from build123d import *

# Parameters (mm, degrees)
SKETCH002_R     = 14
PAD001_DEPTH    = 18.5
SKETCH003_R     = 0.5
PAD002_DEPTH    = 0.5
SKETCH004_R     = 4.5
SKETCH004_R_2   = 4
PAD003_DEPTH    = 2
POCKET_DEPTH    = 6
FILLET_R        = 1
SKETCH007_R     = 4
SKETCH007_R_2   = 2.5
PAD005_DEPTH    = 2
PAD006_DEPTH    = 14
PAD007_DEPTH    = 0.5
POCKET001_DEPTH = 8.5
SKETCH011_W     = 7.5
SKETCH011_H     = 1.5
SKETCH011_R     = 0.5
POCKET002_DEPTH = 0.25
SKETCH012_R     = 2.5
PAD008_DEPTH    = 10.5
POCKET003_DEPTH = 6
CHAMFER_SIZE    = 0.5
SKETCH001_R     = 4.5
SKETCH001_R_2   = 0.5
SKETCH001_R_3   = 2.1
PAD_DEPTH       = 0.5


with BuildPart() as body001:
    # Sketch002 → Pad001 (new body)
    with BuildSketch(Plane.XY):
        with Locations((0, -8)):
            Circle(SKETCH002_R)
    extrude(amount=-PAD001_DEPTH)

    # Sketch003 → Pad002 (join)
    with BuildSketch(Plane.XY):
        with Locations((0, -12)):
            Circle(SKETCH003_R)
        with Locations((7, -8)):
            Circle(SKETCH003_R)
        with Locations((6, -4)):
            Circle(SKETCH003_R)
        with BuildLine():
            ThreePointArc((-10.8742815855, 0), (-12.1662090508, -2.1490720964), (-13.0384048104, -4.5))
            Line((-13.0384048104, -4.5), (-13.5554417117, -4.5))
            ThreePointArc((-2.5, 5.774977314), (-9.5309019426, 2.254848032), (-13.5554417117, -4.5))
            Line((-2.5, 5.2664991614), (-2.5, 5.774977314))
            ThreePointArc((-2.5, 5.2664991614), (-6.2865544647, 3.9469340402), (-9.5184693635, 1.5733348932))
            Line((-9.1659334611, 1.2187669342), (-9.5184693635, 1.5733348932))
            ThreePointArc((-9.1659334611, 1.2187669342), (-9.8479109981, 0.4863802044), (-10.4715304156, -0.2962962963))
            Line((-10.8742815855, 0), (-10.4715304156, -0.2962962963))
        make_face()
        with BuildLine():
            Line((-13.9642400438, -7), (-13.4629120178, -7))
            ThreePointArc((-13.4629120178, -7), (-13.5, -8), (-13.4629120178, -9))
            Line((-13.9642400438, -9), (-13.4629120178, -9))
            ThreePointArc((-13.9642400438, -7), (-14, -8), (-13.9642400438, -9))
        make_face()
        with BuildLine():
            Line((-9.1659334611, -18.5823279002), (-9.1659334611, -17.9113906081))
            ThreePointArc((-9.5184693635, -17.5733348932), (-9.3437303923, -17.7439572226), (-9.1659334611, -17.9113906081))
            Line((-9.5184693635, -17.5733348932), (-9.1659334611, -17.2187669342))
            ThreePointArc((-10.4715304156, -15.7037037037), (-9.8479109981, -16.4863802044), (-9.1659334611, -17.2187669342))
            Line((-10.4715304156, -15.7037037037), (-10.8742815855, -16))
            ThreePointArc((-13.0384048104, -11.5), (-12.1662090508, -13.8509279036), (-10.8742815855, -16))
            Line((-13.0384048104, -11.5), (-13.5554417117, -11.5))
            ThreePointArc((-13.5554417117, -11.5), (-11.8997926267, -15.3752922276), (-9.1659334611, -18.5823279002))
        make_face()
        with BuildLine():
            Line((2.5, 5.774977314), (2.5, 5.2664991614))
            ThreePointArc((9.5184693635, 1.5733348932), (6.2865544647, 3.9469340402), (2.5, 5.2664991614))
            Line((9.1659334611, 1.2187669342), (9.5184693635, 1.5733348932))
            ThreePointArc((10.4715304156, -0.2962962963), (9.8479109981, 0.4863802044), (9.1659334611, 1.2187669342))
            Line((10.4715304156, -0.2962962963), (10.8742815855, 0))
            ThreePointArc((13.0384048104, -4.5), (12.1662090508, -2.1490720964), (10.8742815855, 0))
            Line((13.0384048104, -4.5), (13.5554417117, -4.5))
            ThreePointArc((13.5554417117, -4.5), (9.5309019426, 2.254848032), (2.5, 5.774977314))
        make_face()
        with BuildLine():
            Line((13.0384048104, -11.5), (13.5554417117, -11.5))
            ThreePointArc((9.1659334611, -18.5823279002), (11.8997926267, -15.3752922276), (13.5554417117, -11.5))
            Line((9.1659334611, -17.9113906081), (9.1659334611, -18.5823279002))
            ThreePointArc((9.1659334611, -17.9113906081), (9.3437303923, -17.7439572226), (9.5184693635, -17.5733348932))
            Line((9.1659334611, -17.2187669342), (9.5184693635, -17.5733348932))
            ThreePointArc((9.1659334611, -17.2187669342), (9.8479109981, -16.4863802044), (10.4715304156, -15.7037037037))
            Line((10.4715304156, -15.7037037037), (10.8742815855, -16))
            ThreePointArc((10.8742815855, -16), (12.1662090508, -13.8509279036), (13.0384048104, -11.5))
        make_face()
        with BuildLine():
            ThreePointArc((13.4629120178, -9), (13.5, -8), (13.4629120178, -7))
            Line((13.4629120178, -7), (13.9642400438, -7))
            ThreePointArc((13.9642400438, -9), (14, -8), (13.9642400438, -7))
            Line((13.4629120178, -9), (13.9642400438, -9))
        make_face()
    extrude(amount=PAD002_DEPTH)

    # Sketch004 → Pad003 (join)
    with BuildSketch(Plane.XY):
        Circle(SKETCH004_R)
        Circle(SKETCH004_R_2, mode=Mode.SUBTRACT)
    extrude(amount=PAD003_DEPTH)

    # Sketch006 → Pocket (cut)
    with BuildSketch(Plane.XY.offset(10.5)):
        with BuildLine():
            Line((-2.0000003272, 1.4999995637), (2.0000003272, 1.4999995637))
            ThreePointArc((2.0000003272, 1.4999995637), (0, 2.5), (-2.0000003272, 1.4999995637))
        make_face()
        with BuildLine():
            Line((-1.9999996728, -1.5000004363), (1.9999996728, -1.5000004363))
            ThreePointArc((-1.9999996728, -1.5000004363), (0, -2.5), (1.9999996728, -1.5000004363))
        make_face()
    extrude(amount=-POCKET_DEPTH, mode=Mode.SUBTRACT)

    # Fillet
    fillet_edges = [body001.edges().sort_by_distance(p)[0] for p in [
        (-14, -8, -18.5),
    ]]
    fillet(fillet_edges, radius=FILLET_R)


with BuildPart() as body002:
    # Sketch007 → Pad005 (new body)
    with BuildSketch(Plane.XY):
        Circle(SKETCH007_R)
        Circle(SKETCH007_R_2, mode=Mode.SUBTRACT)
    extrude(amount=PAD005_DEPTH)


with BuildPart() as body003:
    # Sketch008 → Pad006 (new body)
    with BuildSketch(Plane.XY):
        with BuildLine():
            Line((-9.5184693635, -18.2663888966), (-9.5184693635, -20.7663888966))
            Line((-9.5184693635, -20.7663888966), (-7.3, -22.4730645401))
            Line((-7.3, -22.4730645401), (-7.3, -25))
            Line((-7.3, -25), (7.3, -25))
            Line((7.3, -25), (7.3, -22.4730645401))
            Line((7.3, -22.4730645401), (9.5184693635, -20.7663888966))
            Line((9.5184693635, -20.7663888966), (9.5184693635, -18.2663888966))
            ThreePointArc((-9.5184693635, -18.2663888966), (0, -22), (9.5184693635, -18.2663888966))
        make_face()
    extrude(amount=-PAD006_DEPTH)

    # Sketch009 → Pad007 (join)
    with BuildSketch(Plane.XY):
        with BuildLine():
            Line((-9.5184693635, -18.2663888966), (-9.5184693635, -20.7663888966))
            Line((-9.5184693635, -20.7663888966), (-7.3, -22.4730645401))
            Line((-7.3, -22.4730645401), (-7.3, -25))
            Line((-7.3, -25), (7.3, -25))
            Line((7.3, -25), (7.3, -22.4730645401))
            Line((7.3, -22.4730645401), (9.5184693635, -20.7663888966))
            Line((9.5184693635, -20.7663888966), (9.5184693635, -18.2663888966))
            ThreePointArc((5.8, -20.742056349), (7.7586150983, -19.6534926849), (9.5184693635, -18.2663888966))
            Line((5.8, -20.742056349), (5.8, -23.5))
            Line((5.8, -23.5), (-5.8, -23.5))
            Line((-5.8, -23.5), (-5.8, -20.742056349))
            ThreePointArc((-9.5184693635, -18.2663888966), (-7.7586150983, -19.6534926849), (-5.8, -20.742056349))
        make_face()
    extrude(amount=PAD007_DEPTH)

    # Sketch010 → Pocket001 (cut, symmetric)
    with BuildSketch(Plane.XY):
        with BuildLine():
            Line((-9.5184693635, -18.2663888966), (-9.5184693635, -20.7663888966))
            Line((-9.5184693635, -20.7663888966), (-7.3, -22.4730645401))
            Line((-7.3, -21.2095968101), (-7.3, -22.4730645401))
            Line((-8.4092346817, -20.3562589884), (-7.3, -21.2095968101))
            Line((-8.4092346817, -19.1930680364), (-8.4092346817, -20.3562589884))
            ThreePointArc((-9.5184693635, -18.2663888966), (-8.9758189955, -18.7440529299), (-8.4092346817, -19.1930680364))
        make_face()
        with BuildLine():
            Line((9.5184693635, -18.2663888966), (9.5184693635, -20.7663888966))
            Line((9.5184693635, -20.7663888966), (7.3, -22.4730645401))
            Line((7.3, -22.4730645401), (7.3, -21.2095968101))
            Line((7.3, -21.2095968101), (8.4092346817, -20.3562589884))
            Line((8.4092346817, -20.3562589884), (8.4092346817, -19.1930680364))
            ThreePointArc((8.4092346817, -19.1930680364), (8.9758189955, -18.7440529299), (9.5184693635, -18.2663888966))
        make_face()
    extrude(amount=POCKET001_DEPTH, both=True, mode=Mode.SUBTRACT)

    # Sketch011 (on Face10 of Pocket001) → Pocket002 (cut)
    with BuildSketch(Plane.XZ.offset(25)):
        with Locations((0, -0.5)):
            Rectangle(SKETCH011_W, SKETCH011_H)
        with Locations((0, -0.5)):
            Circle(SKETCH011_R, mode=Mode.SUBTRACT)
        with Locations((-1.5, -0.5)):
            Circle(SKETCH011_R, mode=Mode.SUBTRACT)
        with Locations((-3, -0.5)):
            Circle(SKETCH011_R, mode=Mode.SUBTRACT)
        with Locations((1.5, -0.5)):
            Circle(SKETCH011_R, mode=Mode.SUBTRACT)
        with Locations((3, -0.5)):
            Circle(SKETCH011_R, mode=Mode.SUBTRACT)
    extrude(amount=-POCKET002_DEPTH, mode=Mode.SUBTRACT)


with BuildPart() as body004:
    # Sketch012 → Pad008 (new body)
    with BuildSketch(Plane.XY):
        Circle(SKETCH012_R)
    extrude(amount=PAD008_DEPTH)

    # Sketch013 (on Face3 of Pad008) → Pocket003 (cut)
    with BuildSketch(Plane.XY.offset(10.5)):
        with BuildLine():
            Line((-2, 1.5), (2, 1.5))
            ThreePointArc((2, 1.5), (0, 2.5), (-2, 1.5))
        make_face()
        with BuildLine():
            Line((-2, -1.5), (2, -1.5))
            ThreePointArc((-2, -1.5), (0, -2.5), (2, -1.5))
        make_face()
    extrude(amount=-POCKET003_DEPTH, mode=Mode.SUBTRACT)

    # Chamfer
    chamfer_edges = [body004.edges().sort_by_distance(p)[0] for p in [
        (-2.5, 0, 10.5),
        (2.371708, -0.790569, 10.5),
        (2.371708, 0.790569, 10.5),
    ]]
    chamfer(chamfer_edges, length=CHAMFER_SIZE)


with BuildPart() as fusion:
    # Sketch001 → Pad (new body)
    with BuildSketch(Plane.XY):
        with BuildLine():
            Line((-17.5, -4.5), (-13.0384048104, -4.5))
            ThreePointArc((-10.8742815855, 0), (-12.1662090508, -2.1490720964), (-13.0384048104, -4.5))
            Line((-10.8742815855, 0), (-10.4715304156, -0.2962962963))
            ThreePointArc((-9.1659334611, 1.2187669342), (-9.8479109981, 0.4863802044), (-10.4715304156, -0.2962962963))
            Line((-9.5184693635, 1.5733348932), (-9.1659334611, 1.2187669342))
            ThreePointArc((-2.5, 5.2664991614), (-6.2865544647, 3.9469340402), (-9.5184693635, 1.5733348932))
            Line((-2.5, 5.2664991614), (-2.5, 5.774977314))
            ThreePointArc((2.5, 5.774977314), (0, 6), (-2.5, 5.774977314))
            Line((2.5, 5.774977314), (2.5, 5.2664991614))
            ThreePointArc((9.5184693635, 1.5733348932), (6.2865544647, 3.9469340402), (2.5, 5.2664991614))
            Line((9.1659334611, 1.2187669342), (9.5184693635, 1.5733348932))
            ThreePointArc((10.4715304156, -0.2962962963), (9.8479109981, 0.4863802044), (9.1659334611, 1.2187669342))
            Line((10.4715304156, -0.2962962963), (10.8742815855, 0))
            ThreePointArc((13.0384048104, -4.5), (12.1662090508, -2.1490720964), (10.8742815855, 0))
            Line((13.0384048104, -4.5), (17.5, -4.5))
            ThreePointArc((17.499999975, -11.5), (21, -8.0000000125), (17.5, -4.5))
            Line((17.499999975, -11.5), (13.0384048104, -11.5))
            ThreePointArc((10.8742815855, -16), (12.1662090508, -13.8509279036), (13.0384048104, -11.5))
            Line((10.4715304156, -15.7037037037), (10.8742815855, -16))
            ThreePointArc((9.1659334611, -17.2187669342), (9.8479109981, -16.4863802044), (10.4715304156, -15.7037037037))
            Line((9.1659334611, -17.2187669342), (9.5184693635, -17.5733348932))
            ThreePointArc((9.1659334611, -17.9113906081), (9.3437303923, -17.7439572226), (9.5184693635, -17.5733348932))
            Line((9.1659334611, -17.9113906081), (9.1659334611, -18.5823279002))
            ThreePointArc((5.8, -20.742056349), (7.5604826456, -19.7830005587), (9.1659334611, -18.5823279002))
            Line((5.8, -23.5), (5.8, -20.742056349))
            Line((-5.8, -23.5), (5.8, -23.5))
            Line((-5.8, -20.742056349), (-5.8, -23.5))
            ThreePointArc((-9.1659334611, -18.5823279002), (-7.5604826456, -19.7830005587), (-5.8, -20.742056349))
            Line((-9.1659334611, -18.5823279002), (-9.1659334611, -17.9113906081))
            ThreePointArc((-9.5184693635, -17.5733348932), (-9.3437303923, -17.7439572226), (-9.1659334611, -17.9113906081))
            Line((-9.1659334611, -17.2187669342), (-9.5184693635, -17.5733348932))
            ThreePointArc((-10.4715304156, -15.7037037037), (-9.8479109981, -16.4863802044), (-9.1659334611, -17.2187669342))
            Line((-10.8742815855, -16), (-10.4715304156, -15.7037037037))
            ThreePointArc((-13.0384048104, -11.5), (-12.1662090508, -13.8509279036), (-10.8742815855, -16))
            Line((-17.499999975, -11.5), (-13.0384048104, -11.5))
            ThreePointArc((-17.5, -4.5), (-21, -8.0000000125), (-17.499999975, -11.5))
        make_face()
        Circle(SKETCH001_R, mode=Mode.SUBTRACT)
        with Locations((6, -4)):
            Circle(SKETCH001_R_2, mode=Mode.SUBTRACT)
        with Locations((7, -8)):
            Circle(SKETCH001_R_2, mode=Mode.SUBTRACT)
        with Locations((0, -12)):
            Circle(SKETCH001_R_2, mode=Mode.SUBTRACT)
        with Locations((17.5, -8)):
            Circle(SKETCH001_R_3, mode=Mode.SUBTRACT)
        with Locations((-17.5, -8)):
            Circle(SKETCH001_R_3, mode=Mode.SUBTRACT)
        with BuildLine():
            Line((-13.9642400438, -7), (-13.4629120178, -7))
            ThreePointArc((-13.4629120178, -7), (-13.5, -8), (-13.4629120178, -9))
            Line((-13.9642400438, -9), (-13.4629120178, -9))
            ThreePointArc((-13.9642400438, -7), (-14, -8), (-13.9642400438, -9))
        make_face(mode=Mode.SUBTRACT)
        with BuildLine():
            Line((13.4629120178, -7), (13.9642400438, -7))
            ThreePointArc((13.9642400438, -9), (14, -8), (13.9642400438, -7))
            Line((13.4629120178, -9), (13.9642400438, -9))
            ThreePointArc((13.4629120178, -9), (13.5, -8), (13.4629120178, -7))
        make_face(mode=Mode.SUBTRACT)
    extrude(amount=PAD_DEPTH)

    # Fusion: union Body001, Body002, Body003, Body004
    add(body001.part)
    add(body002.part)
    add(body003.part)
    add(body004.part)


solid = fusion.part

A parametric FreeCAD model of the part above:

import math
import FreeCAD as App
import Part
import Sketcher

V = App.Vector
Q = App.Units.Quantity


def edges_at(feature, points):
    """Names of the edges that pass closest to the given points."""
    edges = feature.Shape.Edges
    near = lambda p: min(range(len(edges)), key=lambda i: edges[i].distToShape(Part.Vertex(*p))[0])
    return sorted({f"Edge{near(p) + 1}" for p in points})


def add_polygon(sketch, points):
    """Adds a closed chain of lines whose ends are joined by coincident constraints."""
    first, n = sketch.GeometryCount, len(points)
    for a, b in zip(points, points[1:] + points[:1]):
        sketch.addGeometry(Part.LineSegment(App.Vector(*a, 0), App.Vector(*b, 0)), False)
    for i in range(n):
        sketch.addConstraint(Sketcher.Constraint("Coincident", first + i, 2, first + (i + 1) % n, 1))

doc = App.newDocument("Part")
body = doc.addObject("PartDesign::Body", "Body")

sketch1 = body.newObject("Sketcher::SketchObject", "Sketch")
sketch1.AttachmentSupport = (doc.getObject("XY_Plane"), [""])
sketch1.MapMode = "FlatFace"
sketch1.addGeometry(Part.Circle(V(0, -8, 0), V(0, 0, 1), 14), False)
sketch1.addConstraint([
    Sketcher.Constraint("PointOnObject", 0, 3, -2),
    Sketcher.Constraint("Diameter", 0, Q("28 mm")),
    Sketcher.Constraint("DistanceY", 0, 3, -1, 1, Q("8 mm")),
])
pad1 = body.newObject("PartDesign::Pad", "Pad")
pad1.Profile = sketch1
pad1.Length = 18.5
pad1.Reversed = True

sketch2 = body.newObject("Sketcher::SketchObject", "Sketch001")
sketch2.AttachmentSupport = (doc.getObject("XY_Plane"), [""])
sketch2.MapMode = "FlatFace"
sketch2.addGeometry([
    Part.Circle(V(0, -12, 0), V(0, 0, 1), 0.5),
    Part.Circle(V(7, -8, 0), V(0, 0, 1), 0.5),
    Part.Circle(V(6, -4, 0), V(0, 0, 1), 0.5),
    Part.ArcOfCircle(Part.Circle(V(0, -8, 0), V(0, 0, 1), 13.5), math.radians(144), math.radians(165)),
    Part.LineSegment(V(-10.87, 0, 0), V(-10.47, -0.3, 0)),
    Part.ArcOfCircle(Part.Circle(V(0, -8, 0), V(0, 0, 1), 13), math.radians(134.84), math.radians(143.66)),
    Part.LineSegment(V(-9.17, 1.22, 0), V(-9.52, 1.57, 0)),
    Part.ArcOfCircle(Part.Circle(V(0, -8, 0), V(0, 0, 1), 13.5), math.radians(101), math.radians(135)),
    Part.LineSegment(V(-2.5, 5.27, 0), V(-2.5, 5.77, 0)),
    Part.ArcOfCircle(Part.Circle(V(0, -8, 0), V(0, 0, 1), 14), math.radians(100), math.radians(166)),
    Part.LineSegment(V(-13.56, -4.5, 0), V(-13.04, -4.5, 0)),
    Part.LineSegment(V(-13.46, -7, 0), V(-13.96, -7, 0)),
    Part.ArcOfCircle(Part.Circle(V(0, -8, 0), V(0, 0, 1), 14), math.radians(175.9), math.radians(184.1)),
    Part.LineSegment(V(-13.96, -9, 0), V(-13.46, -9, 0)),
    Part.ArcOfCircle(Part.Circle(V(0, -8, 0), V(0, 0, 1), 13.5), math.radians(175.75), math.radians(184.25)),
    Part.LineSegment(V(-9.17, -18.58, 0), V(-9.17, -17.91, 0)),
    Part.ArcOfCircle(Part.Circle(V(0, -8, 0), V(0, 0, 1), 13.5), math.radians(-134.84), math.radians(-132.76)),
    Part.LineSegment(V(-9.52, -17.57, 0), V(-9.17, -17.22, 0)),
    Part.ArcOfCircle(Part.Circle(V(0, -8, 0), V(0, 0, 1), 13), math.radians(-143.66), math.radians(-134.84)),
    Part.LineSegment(V(-10.47, -15.7, 0), V(-10.87, -16, 0)),
    Part.ArcOfCircle(Part.Circle(V(0, -8, 0), V(0, 0, 1), 13.5), math.radians(-165), math.radians(-144)),
    Part.LineSegment(V(-13.04, -11.5, 0), V(-13.56, -11.5, 0)),
    Part.ArcOfCircle(Part.Circle(V(0, -8, 0), V(0, 0, 1), 14), math.radians(-166), math.radians(-131)),
    Part.LineSegment(V(2.5, 5.77, 0), V(2.5, 5.27, 0)),
    Part.ArcOfCircle(Part.Circle(V(0, -8, 0), V(0, 0, 1), 13.5), math.radians(45), math.radians(79)),
    Part.LineSegment(V(9.52, 1.57, 0), V(9.17, 1.22, 0)),
    Part.ArcOfCircle(Part.Circle(V(0, -8, 0), V(0, 0, 1), 13), math.radians(36.34), math.radians(45.16)),
    Part.LineSegment(V(10.47, -0.3, 0), V(10.87, 0, 0)),
    Part.ArcOfCircle(Part.Circle(V(0, -8, 0), V(0, 0, 1), 13.5), math.radians(15), math.radians(36)),
    Part.LineSegment(V(13.04, -4.5, 0), V(13.56, -4.5, 0)),
    Part.ArcOfCircle(Part.Circle(V(0, -8, 0), V(0, 0, 1), 14), math.radians(14), math.radians(80)),
    Part.LineSegment(V(13.56, -11.5, 0), V(13.04, -11.5, 0)),
    Part.ArcOfCircle(Part.Circle(V(0, -8, 0), V(0, 0, 1), 13.5), math.radians(-36), math.radians(-15)),
    Part.LineSegment(V(10.87, -16, 0), V(10.47, -15.7, 0)),
    Part.ArcOfCircle(Part.Circle(V(0, -8, 0), V(0, 0, 1), 13), math.radians(-45.16), math.radians(-36.34)),
    Part.LineSegment(V(9.17, -17.22, 0), V(9.52, -17.57, 0)),
    Part.ArcOfCircle(Part.Circle(V(0, -8, 0), V(0, 0, 1), 13.5), math.radians(-47.24), math.radians(-45.16)),
    Part.LineSegment(V(9.17, -17.91, 0), V(9.17, -18.58, 0)),
    Part.ArcOfCircle(Part.Circle(V(0, -8, 0), V(0, 0, 1), 14), math.radians(-49), math.radians(-14)),
    Part.ArcOfCircle(Part.Circle(V(0, -8, 0), V(0, 0, 1), 13.5), math.radians(-4.25), math.radians(4.25)),
    Part.LineSegment(V(13.46, -9, 0), V(13.96, -9, 0)),
    Part.ArcOfCircle(Part.Circle(V(0, -8, 0), V(0, 0, 1), 14), math.radians(-4.1), math.radians(4.1)),
    Part.LineSegment(V(13.96, -7, 0), V(13.46, -7, 0)),
], False)
sketch2.addConstraint([
    Sketcher.Constraint("Coincident", 3, 1, 4, 1),
    Sketcher.Constraint("Coincident", 4, 2, 5, 2),
    Sketcher.Constraint("Coincident", 5, 1, 6, 1),
    Sketcher.Constraint("Coincident", 6, 2, 7, 2),
    Sketcher.Constraint("Coincident", 7, 1, 8, 1),
    Sketcher.Constraint("Coincident", 8, 2, 9, 1),
    Sketcher.Constraint("Coincident", 9, 2, 10, 1),
    Sketcher.Constraint("Coincident", 10, 2, 3, 2),
    Sketcher.Constraint("Coincident", 11, 2, 12, 1),
    Sketcher.Constraint("Coincident", 12, 2, 13, 1),
    Sketcher.Constraint("Coincident", 13, 2, 14, 2),
    Sketcher.Constraint("Coincident", 14, 1, 11, 1),
    Sketcher.Constraint("Coincident", 15, 2, 16, 2),
    Sketcher.Constraint("Coincident", 16, 1, 17, 1),
    Sketcher.Constraint("Coincident", 17, 2, 18, 2),
    Sketcher.Constraint("Coincident", 18, 1, 19, 1),
    Sketcher.Constraint("Coincident", 19, 2, 20, 2),
    Sketcher.Constraint("Coincident", 20, 1, 21, 1),
    Sketcher.Constraint("Coincident", 21, 2, 22, 1),
    Sketcher.Constraint("Coincident", 22, 2, 15, 1),
    Sketcher.Constraint("Coincident", 23, 2, 24, 2),
    Sketcher.Constraint("Coincident", 24, 1, 25, 1),
    Sketcher.Constraint("Coincident", 25, 2, 26, 2),
    Sketcher.Constraint("Coincident", 26, 1, 27, 1),
    Sketcher.Constraint("Coincident", 27, 2, 28, 2),
    Sketcher.Constraint("Coincident", 28, 1, 29, 1),
    Sketcher.Constraint("Coincident", 29, 2, 30, 1),
    Sketcher.Constraint("Coincident", 30, 2, 23, 1),
    Sketcher.Constraint("Coincident", 31, 2, 32, 2),
    Sketcher.Constraint("Coincident", 32, 1, 33, 1),
    Sketcher.Constraint("Coincident", 33, 2, 34, 2),
    Sketcher.Constraint("Coincident", 34, 1, 35, 1),
    Sketcher.Constraint("Coincident", 35, 2, 36, 2),
    Sketcher.Constraint("Coincident", 36, 1, 37, 1),
    Sketcher.Constraint("Coincident", 37, 2, 38, 1),
    Sketcher.Constraint("Coincident", 38, 2, 31, 1),
    Sketcher.Constraint("Coincident", 39, 1, 40, 1),
    Sketcher.Constraint("Coincident", 40, 2, 41, 1),
    Sketcher.Constraint("Coincident", 41, 2, 42, 1),
    Sketcher.Constraint("Coincident", 42, 2, 39, 2),
    Sketcher.Constraint("Vertical", 8),
    Sketcher.Constraint("Horizontal", 10),
    Sketcher.Constraint("Horizontal", 11),
    Sketcher.Constraint("Horizontal", 13),
    Sketcher.Constraint("Vertical", 15),
    Sketcher.Constraint("Horizontal", 21),
    Sketcher.Constraint("Vertical", 23),
    Sketcher.Constraint("Horizontal", 29),
    Sketcher.Constraint("Horizontal", 31),
    Sketcher.Constraint("Vertical", 37),
    Sketcher.Constraint("Horizontal", 40),
    Sketcher.Constraint("Horizontal", 42),
    Sketcher.Constraint("Coincident", 5, 3, 3, 3),
    Sketcher.Constraint("Coincident", 7, 3, 3, 3),
    Sketcher.Constraint("Coincident", 9, 3, 3, 3),
    Sketcher.Constraint("Coincident", 12, 3, 3, 3),
    Sketcher.Constraint("Coincident", 14, 3, 3, 3),
    Sketcher.Constraint("Coincident", 16, 3, 3, 3),
    Sketcher.Constraint("Coincident", 18, 3, 3, 3),
    Sketcher.Constraint("Coincident", 20, 3, 3, 3),
    Sketcher.Constraint("Coincident", 22, 3, 3, 3),
    Sketcher.Constraint("Coincident", 24, 3, 3, 3),
    Sketcher.Constraint("Coincident", 26, 3, 3, 3),
    Sketcher.Constraint("Coincident", 28, 3, 3, 3),
    Sketcher.Constraint("Coincident", 30, 3, 3, 3),
    Sketcher.Constraint("Coincident", 32, 3, 3, 3),
    Sketcher.Constraint("Coincident", 34, 3, 3, 3),
    Sketcher.Constraint("Coincident", 36, 3, 3, 3),
    Sketcher.Constraint("Coincident", 38, 3, 3, 3),
    Sketcher.Constraint("Coincident", 39, 3, 3, 3),
    Sketcher.Constraint("Coincident", 41, 3, 3, 3),
    Sketcher.Constraint("Equal", 0, 1),
    Sketcher.Constraint("Equal", 1, 2),
    Sketcher.Constraint("Equal", 3, 7),
    Sketcher.Constraint("Equal", 9, 12),
    Sketcher.Constraint("Equal", 7, 14),
    Sketcher.Constraint("Equal", 14, 16),
    Sketcher.Constraint("Equal", 5, 18),
    Sketcher.Constraint("Equal", 16, 20),
    Sketcher.Constraint("Equal", 12, 22),
    Sketcher.Constraint("Equal", 20, 24),
    Sketcher.Constraint("Equal", 18, 26),
    Sketcher.Constraint("Equal", 24, 28),
    Sketcher.Constraint("Equal", 22, 30),
    Sketcher.Constraint("Equal", 28, 32),
    Sketcher.Constraint("Equal", 26, 34),
    Sketcher.Constraint("Equal", 32, 36),
    Sketcher.Constraint("Equal", 30, 38),
    Sketcher.Constraint("Equal", 36, 39),
    Sketcher.Constraint("Equal", 38, 41),
    Sketcher.Constraint("Symmetric", 3, 1, 27, 2, -1, 1),
    Sketcher.Constraint("Symmetric", 7, 1, 23, 2, -2),
    Sketcher.Constraint("PointOnObject", 0, 3, -2),
    Sketcher.Constraint("Parallel", 17, 25),
    Sketcher.Constraint("Parallel", 19, 27),
    Sketcher.Constraint("Parallel", 4, 33),
    Sketcher.Constraint("Parallel", 6, 35),
    Sketcher.Constraint("Horizontal", 1, 3, 3, 3),
    Sketcher.Constraint("Horizontal", 6, 2, 24, 1),
    Sketcher.Constraint("Horizontal", 5, 1, 25, 2),
    Sketcher.Constraint("Horizontal", 4, 2, 26, 1),
    Sketcher.Constraint("Horizontal", 10, 2, 28, 1),
    Sketcher.Constraint("Horizontal", 21, 2, 31, 2),
    Sketcher.Constraint("Horizontal", 19, 2, 32, 1),
    Sketcher.Constraint("Horizontal", 17, 2, 34, 1),
    Sketcher.Constraint("Horizontal", 15, 2, 36, 1),
    Sketcher.Constraint("Horizontal", 13, 2, 39, 1),
    Sketcher.Constraint("Horizontal", 14, 1, 41, 2),
    Sketcher.Constraint("Vertical", 11, 2, 12, 2),
    Sketcher.Constraint("Vertical", 5, 1, 15, 2),
    Sketcher.Constraint("Vertical", 6, 2, 16, 1),
    Sketcher.Constraint("Vertical", 4, 2, 18, 1),
    Sketcher.Constraint("Vertical", 10, 2, 20, 1),
    Sketcher.Constraint("Diameter", 0, Q("1 mm")),
    Sketcher.Constraint("Radius", 5, Q("13 mm")),
    Sketcher.Constraint("Radius", 9, Q("14 mm")),
    Sketcher.Constraint("Radius", 3, Q("13.5 mm")),
    Sketcher.Constraint("DistanceY", 0, 3, -1, 1, Q("12 mm")),
    Sketcher.Constraint("DistanceX", -1, 1, 1, 3, Q("7 mm")),
    Sketcher.Constraint("DistanceY", 1, 3, -1, 1, Q("8 mm")),
    Sketcher.Constraint("DistanceX", -1, 1, 2, 3, Q("6 mm")),
    Sketcher.Constraint("DistanceY", 2, 3, -1, 1, Q("4 mm")),
    Sketcher.Constraint("DistanceY", 11, 2, -1, 1, Q("7 mm")),
    Sketcher.Constraint("DistanceX", 7, 1, -1, 1, Q("2.5 mm")),
    Sketcher.Constraint("DistanceY", 9, 2, -1, 1, Q("4.5 mm")),
    Sketcher.Constraint("DistanceY", 15, 1, 15, 2, Q("0.670937 mm")),
    Sketcher.Constraint("DistanceX", 4, 2, -1, 1, Q("10.47153 mm")),
    Sketcher.Constraint("DistanceX", 6, 2, -1, 1, Q("9.518469 mm")),
])
pad2 = body.newObject("PartDesign::Pad", "Pad001")
pad2.Profile = sketch2
pad2.Length = 0.5

sketch3 = body.newObject("Sketcher::SketchObject", "Sketch002")
sketch3.AttachmentSupport = (doc.getObject("XY_Plane"), [""])
sketch3.MapMode = "FlatFace"
sketch3.addGeometry([
    Part.Circle(V(0, 0, 0), V(0, 0, 1), 4.5),
    Part.Circle(V(0, 0, 0), V(0, 0, 1), 4),
], False)
sketch3.addConstraint([
    Sketcher.Constraint("Coincident", 0, 3, -1, 1),
    Sketcher.Constraint("Coincident", 1, 3, -1, 1),
    Sketcher.Constraint("Diameter", 0, Q("9 mm")),
    Sketcher.Constraint("Diameter", 1, Q("8 mm")),
])
pad3 = body.newObject("PartDesign::Pad", "Pad002")
pad3.Profile = sketch3
pad3.Length = 2

sketch4 = body.newObject("Sketcher::SketchObject", "Sketch003")
sketch4.AttachmentSupport = (doc.getObject("XY_Plane"), [""])
sketch4.MapMode = "FlatFace"
sketch4.AttachmentOffset = App.Placement(V(0, 0, 10.5), App.Rotation())
sketch4.addGeometry([
    Part.LineSegment(V(-2, 1.5, 0), V(2, 1.5, 0)),
    Part.ArcOfCircle(Part.Circle(V(0, 0, 0), V(0, 0, 1), 2.5), math.radians(37), math.radians(143)),
    Part.LineSegment(V(2, -1.5, 0), V(-2, -1.5, 0)),
    Part.ArcOfCircle(Part.Circle(V(0, 0, 0), V(0, 0, 1), 2.5), math.radians(-143), math.radians(-37)),
], False)
sketch4.addConstraint([
    Sketcher.Constraint("Coincident", 0, 1, 1, 2),
    Sketcher.Constraint("Coincident", 1, 1, 0, 2),
    Sketcher.Constraint("Coincident", 2, 1, 3, 2),
    Sketcher.Constraint("Coincident", 3, 1, 2, 2),
    Sketcher.Constraint("Horizontal", 0),
    Sketcher.Constraint("Horizontal", 2),
    Sketcher.Constraint("Coincident", 1, 3, -1, 1),
    Sketcher.Constraint("Coincident", 3, 3, -1, 1),
    Sketcher.Constraint("Equal", 1, 3),
    Sketcher.Constraint("Vertical", 1, 1, 2, 1),
    Sketcher.Constraint("Radius", 1, Q("2.5 mm")),
    Sketcher.Constraint("DistanceX", 0, 1, 0, 2, Q("4.000001 mm")),
])
pocket1 = body.newObject("PartDesign::Pocket", "Pocket")
pocket1.Profile = sketch4
pocket1.Length = 6
doc.recompute()

fillet = body.newObject("PartDesign::Fillet", "Fillet")
fillet.Base = (pocket1, edges_at(pocket1, [(-14, -8, -18.5)]))
fillet.Radius = 1
body2 = doc.addObject("PartDesign::Body", "Body001")

sketch5 = body2.newObject("Sketcher::SketchObject", "Sketch004")
sketch5.AttachmentSupport = (doc.getObject("XY_Plane001"), [""])
sketch5.MapMode = "FlatFace"
sketch5.addGeometry([
    Part.Circle(V(0, 0, 0), V(0, 0, 1), 4),
    Part.Circle(V(0, 0, 0), V(0, 0, 1), 2.5),
], False)
sketch5.addConstraint([
    Sketcher.Constraint("Coincident", 0, 3, -1, 1),
    Sketcher.Constraint("Coincident", 1, 3, -1, 1),
    Sketcher.Constraint("Diameter", 0, Q("8 mm")),
    Sketcher.Constraint("Diameter", 1, Q("5 mm")),
])
pad4 = body2.newObject("PartDesign::Pad", "Pad003")
pad4.Profile = sketch5
pad4.Length = 2
body3 = doc.addObject("PartDesign::Body", "Body002")

sketch6 = body3.newObject("Sketcher::SketchObject", "Sketch005")
sketch6.AttachmentSupport = (doc.getObject("XY_Plane002"), [""])
sketch6.MapMode = "FlatFace"
sketch6.addGeometry([
    Part.LineSegment(V(-9.5, -18.3, 0), V(-9.5, -20.8, 0)),
    Part.LineSegment(V(-9.5, -20.8, 0), V(-7.3, -22.5, 0)),
    Part.LineSegment(V(-7.3, -22.5, 0), V(-7.3, -25, 0)),
    Part.LineSegment(V(-7.3, -25, 0), V(7.3, -25, 0)),
    Part.LineSegment(V(7.3, -25, 0), V(7.3, -22.5, 0)),
    Part.LineSegment(V(7.3, -22.5, 0), V(9.5, -20.8, 0)),
    Part.LineSegment(V(9.5, -20.8, 0), V(9.5, -18.3, 0)),
    Part.ArcOfCircle(Part.Circle(V(0, -8, 0), V(0, 0, 1), 14), math.radians(-133), math.radians(-47)),
], False)
sketch6.addConstraint([
    Sketcher.Constraint("Coincident", 0, 2, 1, 1),
    Sketcher.Constraint("Coincident", 1, 2, 2, 1),
    Sketcher.Constraint("Coincident", 2, 2, 3, 1),
    Sketcher.Constraint("Coincident", 3, 2, 4, 1),
    Sketcher.Constraint("Coincident", 4, 2, 5, 1),
    Sketcher.Constraint("Coincident", 5, 2, 6, 1),
    Sketcher.Constraint("Coincident", 6, 2, 7, 2),
    Sketcher.Constraint("Coincident", 7, 1, 0, 1),
    Sketcher.Constraint("Vertical", 0),
    Sketcher.Constraint("Vertical", 2),
    Sketcher.Constraint("Horizontal", 3),
    Sketcher.Constraint("Vertical", 4),
    Sketcher.Constraint("Vertical", 6),
    Sketcher.Constraint("Symmetric", 1, 2, 4, 2, -2),
    Sketcher.Constraint("Symmetric", 0, 2, 5, 2, -2),
    Sketcher.Constraint("PointOnObject", 7, 3, -2),
    Sketcher.Constraint("Radius", 7, Q("14 mm")),
    Sketcher.Constraint("DistanceX", 3, 1, 3, 2, Q("14.6 mm")),
    Sketcher.Constraint("DistanceY", 0, 2, 0, 1, Q("2.5 mm")),
    Sketcher.Constraint("DistanceY", 7, 3, -1, 1, Q("8 mm")),
    Sketcher.Constraint("DistanceY", 2, 2, -1, 1, Q("25 mm")),
    Sketcher.Constraint("Distance", 1, Q("2.798991 mm")),
    Sketcher.Constraint("DistanceY", 2, 2, 2, 1, Q("2.526935 mm")),
])
pad5 = body3.newObject("PartDesign::Pad", "Pad004")
pad5.Profile = sketch6
pad5.Length = 14
pad5.Reversed = True

sketch7 = body3.newObject("Sketcher::SketchObject", "Sketch006")
sketch7.AttachmentSupport = (doc.getObject("XY_Plane002"), [""])
sketch7.MapMode = "FlatFace"
sketch7.addGeometry([
    Part.LineSegment(V(-9.5, -18.3, 0), V(-9.5, -20.8, 0)),
    Part.LineSegment(V(-9.5, -20.8, 0), V(-7.3, -22.5, 0)),
    Part.LineSegment(V(-7.3, -22.5, 0), V(-7.3, -25, 0)),
    Part.LineSegment(V(-7.3, -25, 0), V(7.3, -25, 0)),
    Part.LineSegment(V(7.3, -25, 0), V(7.3, -22.5, 0)),
    Part.LineSegment(V(7.3, -22.5, 0), V(9.5, -20.8, 0)),
    Part.LineSegment(V(9.5, -20.8, 0), V(9.5, -18.3, 0)),
    Part.ArcOfCircle(Part.Circle(V(0, -8, 0), V(0, 0, 1), 14), math.radians(-65.53), math.radians(-47.16)),
    Part.LineSegment(V(5.8, -20.7, 0), V(5.8, -23.5, 0)),
    Part.LineSegment(V(5.8, -23.5, 0), V(-5.8, -23.5, 0)),
    Part.LineSegment(V(-5.8, -23.5, 0), V(-5.8, -20.7, 0)),
    Part.ArcOfCircle(Part.Circle(V(0, -8, 0), V(0, 0, 1), 14), math.radians(-132.84), math.radians(-114.47)),
], False)
sketch7.addConstraint([
    Sketcher.Constraint("Coincident", 0, 2, 1, 1),
    Sketcher.Constraint("Coincident", 1, 2, 2, 1),
    Sketcher.Constraint("Coincident", 2, 2, 3, 1),
    Sketcher.Constraint("Coincident", 3, 2, 4, 1),
    Sketcher.Constraint("Coincident", 4, 2, 5, 1),
    Sketcher.Constraint("Coincident", 5, 2, 6, 1),
    Sketcher.Constraint("Coincident", 6, 2, 7, 2),
    Sketcher.Constraint("Coincident", 7, 1, 8, 1),
    Sketcher.Constraint("Coincident", 8, 2, 9, 1),
    Sketcher.Constraint("Coincident", 9, 2, 10, 1),
    Sketcher.Constraint("Coincident", 10, 2, 11, 2),
    Sketcher.Constraint("Coincident", 11, 1, 0, 1),
    Sketcher.Constraint("Vertical", 0),
    Sketcher.Constraint("Vertical", 2),
    Sketcher.Constraint("Horizontal", 3),
    Sketcher.Constraint("Vertical", 4),
    Sketcher.Constraint("Vertical", 6),
    Sketcher.Constraint("Vertical", 8),
    Sketcher.Constraint("Horizontal", 9),
    Sketcher.Constraint("Vertical", 10),
    Sketcher.Constraint("Coincident", 11, 3, 7, 3),
    Sketcher.Constraint("Equal", 7, 11),
    Sketcher.Constraint("Symmetric", 1, 2, 4, 2, -2),
    Sketcher.Constraint("Symmetric", 0, 2, 5, 2, -2),
    Sketcher.Constraint("Symmetric", 7, 1, 10, 2, -2),
    Sketcher.Constraint("Radius", 7, Q("14 mm")),
    Sketcher.Constraint("DistanceX", 3, 1, 3, 2, Q("14.6 mm")),
    Sketcher.Constraint("DistanceX", 9, 2, 9, 1, Q("11.6 mm")),
    Sketcher.Constraint("DistanceY", 0, 2, 0, 1, Q("2.5 mm")),
    Sketcher.Constraint("DistanceY", 7, 3, -1, 1, Q("8 mm")),
    Sketcher.Constraint("DistanceY", 2, 2, -1, 1, Q("25 mm")),
    Sketcher.Constraint("DistanceY", 8, 2, -1, 1, Q("23.5 mm")),
    Sketcher.Constraint("Distance", 1, Q("2.798991 mm")),
    Sketcher.Constraint("DistanceY", 2, 2, 2, 1, Q("2.526935 mm")),
])
pad6 = body3.newObject("PartDesign::Pad", "Pad005")
pad6.Profile = sketch7
pad6.Length = 0.5

sketch8 = body3.newObject("Sketcher::SketchObject", "Sketch007")
sketch8.AttachmentSupport = (doc.getObject("XY_Plane002"), [""])
sketch8.MapMode = "FlatFace"
sketch8.addGeometry([
    Part.LineSegment(V(-9.518469, -18.266389, 0), V(-9.518469, -20.766389, 0)),
    Part.LineSegment(V(-9.518469, -20.766389, 0), V(-7.3, -22.473065, 0)),
    Part.LineSegment(V(-7.3, -22.473065, 0), V(-7.3, -21.209597, 0)),
    Part.LineSegment(V(-7.3, -21.209597, 0), V(-8.409235, -20.356259, 0)),
    Part.LineSegment(V(-8.409235, -20.356259, 0), V(-8.409235, -19.193068, 0)),
    Part.ArcOfCircle(Part.Circle(V(0, -8, 0), V(0, 0, 1), 14), math.radians(-132.8351), math.radians(-126.917154)),
    Part.LineSegment(V(9.518469, -20.766389, 0), V(9.518469, -18.266389, 0)),
    Part.ArcOfCircle(Part.Circle(V(0, -8, 0), V(0, 0, 1), 14), math.radians(-53.082846), math.radians(-47.1649)),
    Part.LineSegment(V(8.409235, -19.193068, 0), V(8.409235, -20.356259, 0)),
    Part.LineSegment(V(8.409235, -20.356259, 0), V(7.3, -21.209597, 0)),
    Part.LineSegment(V(7.3, -21.209597, 0), V(7.3, -22.473065, 0)),
    Part.LineSegment(V(7.3, -22.473065, 0), V(9.518469, -20.766389, 0)),
], False)
sketch8.addConstraint([
    Sketcher.Constraint("Coincident", 0, 2, 1, 1),
    Sketcher.Constraint("Coincident", 1, 2, 2, 1),
    Sketcher.Constraint("Coincident", 2, 2, 3, 1),
    Sketcher.Constraint("Coincident", 3, 2, 4, 1),
    Sketcher.Constraint("Coincident", 4, 2, 5, 2),
    Sketcher.Constraint("Coincident", 5, 1, 0, 1),
    Sketcher.Constraint("Coincident", 6, 2, 7, 2),
    Sketcher.Constraint("Coincident", 7, 1, 8, 1),
    Sketcher.Constraint("Coincident", 8, 2, 9, 1),
    Sketcher.Constraint("Coincident", 9, 2, 10, 1),
    Sketcher.Constraint("Coincident", 10, 2, 11, 1),
    Sketcher.Constraint("Coincident", 11, 2, 6, 1),
    Sketcher.Constraint("Vertical", 0),
    Sketcher.Constraint("Vertical", 2),
    Sketcher.Constraint("Vertical", 4),
    Sketcher.Constraint("Vertical", 6),
    Sketcher.Constraint("Vertical", 8),
    Sketcher.Constraint("Vertical", 10),
    Sketcher.Constraint("Coincident", 7, 3, 5, 3),
    Sketcher.Constraint("PointOnObject", 5, 3, -2),
    Sketcher.Constraint("Radius", 5, Q("14 mm")),
    Sketcher.Constraint("Radius", 7, Q("14 mm")),
    Sketcher.Constraint("DistanceY", 0, 2, 0, 1, Q("2.5 mm")),
    Sketcher.Constraint("DistanceY", 6, 1, 6, 2, Q("2.5 mm")),
    Sketcher.Constraint("DistanceY", 5, 3, -1, 1, Q("8 mm")),
    Sketcher.Constraint("DistanceX", 1, 2, -1, 1, Q("7.3 mm")),
    Sketcher.Constraint("DistanceX", -1, 1, 9, 2, Q("7.3 mm")),
    Sketcher.Constraint("DistanceY", 4, 1, 4, 2, Q("1.163191 mm")),
    Sketcher.Constraint("DistanceY", 8, 2, 8, 1, Q("1.163191 mm")),
    Sketcher.Constraint("Distance", 1, Q("2.798991 mm")),
    Sketcher.Constraint("Distance", 11, Q("2.798991 mm")),
    Sketcher.Constraint("DistanceY", 2, 1, 2, 2, Q("1.263468 mm")),
    Sketcher.Constraint("DistanceY", 10, 2, 10, 1, Q("1.263468 mm")),
    Sketcher.Constraint("DistanceX", 0, 2, -1, 1, Q("9.518469 mm")),
    Sketcher.Constraint("DistanceY", 3, 2, -1, 1, Q("20.356259 mm")),
    Sketcher.Constraint("DistanceX", -1, 1, 6, 2, Q("9.518469 mm")),
    Sketcher.Constraint("DistanceY", 7, 1, -1, 1, Q("19.193068 mm")),
])
pocket2 = body3.newObject("PartDesign::Pocket", "Pocket001")
pocket2.Profile = sketch8
pocket2.Length = 17
pocket2.Midplane = True

sketch9 = body3.newObject("Sketcher::SketchObject", "Sketch008")
sketch9.AttachmentSupport = (doc.getObject("XZ_Plane002"), [""])
sketch9.MapMode = "FlatFace"
sketch9.AttachmentOffset = App.Placement(V(0, 0, 25), App.Rotation())
add_polygon(sketch9, [(-3.8, 0.2), (-3.8, -1.2), (3.8, -1.2), (3.8, 0.2)])
sketch9.addGeometry(Part.Circle(V(-3, -0.5, 0), V(0, 0, 1), 0.5), False)
sketch9.addGeometry(Part.Circle(V(-1.5, -0.5, 0), V(0, 0, 1), 0.5), False)
sketch9.addGeometry(Part.Circle(V(0, -0.5, 0), V(0, 0, 1), 0.5), False)
sketch9.addGeometry(Part.Circle(V(1.5, -0.5, 0), V(0, 0, 1), 0.5), False)
sketch9.addGeometry(Part.Circle(V(3, -0.5, 0), V(0, 0, 1), 0.5), False)
sketch9.addConstraint([
    Sketcher.Constraint("Vertical", 0),
    Sketcher.Constraint("Horizontal", 1),
    Sketcher.Constraint("Vertical", 2),
    Sketcher.Constraint("Horizontal", 3),
    Sketcher.Constraint("Equal", 4, 5),
    Sketcher.Constraint("Equal", 5, 6),
    Sketcher.Constraint("Equal", 6, 7),
    Sketcher.Constraint("Equal", 7, 8),
    Sketcher.Constraint("Symmetric", 5, 3, 7, 3, -2),
    Sketcher.Constraint("Symmetric", 4, 3, 8, 3, -2),
    Sketcher.Constraint("PointOnObject", 6, 3, -2),
    Sketcher.Constraint("Horizontal", 4, 3, 5, 3),
    Sketcher.Constraint("Horizontal", 5, 3, 6, 3),
    Sketcher.Constraint("Diameter", 4, Q("1 mm")),
    Sketcher.Constraint("DistanceX", 1, 1, 1, 2, Q("7.5 mm")),
    Sketcher.Constraint("DistanceY", 0, 2, 0, 1, Q("1.5 mm")),
    Sketcher.Constraint("DistanceX", 4, 3, -1, 1, Q("3 mm")),
    Sketcher.Constraint("DistanceX", 5, 3, 7, 3, Q("3 mm")),
    Sketcher.Constraint("DistanceY", 4, 3, -1, 1, Q("0.5 mm")),
    Sketcher.Constraint("DistanceX", 0, 2, -1, 1, Q("3.75 mm")),
    Sketcher.Constraint("DistanceY", 0, 2, -1, 1, Q("1.25 mm")),
])
pocket3 = body3.newObject("PartDesign::Pocket", "Pocket002")
pocket3.Profile = sketch9
pocket3.Length = 0.25
body4 = doc.addObject("PartDesign::Body", "Body003")

sketch10 = body4.newObject("Sketcher::SketchObject", "Sketch009")
sketch10.AttachmentSupport = (doc.getObject("XY_Plane003"), [""])
sketch10.MapMode = "FlatFace"
sketch10.addGeometry(Part.Circle(V(0, 0, 0), V(0, 0, 1), 2.5), False)
sketch10.addConstraint([
    Sketcher.Constraint("Coincident", 0, 3, -1, 1),
    Sketcher.Constraint("Diameter", 0, Q("5 mm")),
])
pad7 = body4.newObject("PartDesign::Pad", "Pad006")
pad7.Profile = sketch10
pad7.Length = 10.5

sketch11 = body4.newObject("Sketcher::SketchObject", "Sketch010")
sketch11.AttachmentSupport = (doc.getObject("XY_Plane003"), [""])
sketch11.MapMode = "FlatFace"
sketch11.AttachmentOffset = App.Placement(V(0, 0, 10.5), App.Rotation())
sketch11.addGeometry([
    Part.LineSegment(V(-2, 1.5, 0), V(2, 1.5, 0)),
    Part.ArcOfCircle(Part.Circle(V(0, 0, 0), V(0, 0, 1), 2.5), math.radians(37), math.radians(143)),
    Part.LineSegment(V(2, -1.5, 0), V(-2, -1.5, 0)),
    Part.ArcOfCircle(Part.Circle(V(0, 0, 0), V(0, 0, 1), 2.5), math.radians(-143), math.radians(-37)),
], False)
sketch11.addConstraint([
    Sketcher.Constraint("Coincident", 0, 1, 1, 2),
    Sketcher.Constraint("Coincident", 1, 1, 0, 2),
    Sketcher.Constraint("Coincident", 2, 1, 3, 2),
    Sketcher.Constraint("Coincident", 3, 1, 2, 2),
    Sketcher.Constraint("Horizontal", 0),
    Sketcher.Constraint("Horizontal", 2),
    Sketcher.Constraint("Coincident", 1, 3, -1, 1),
    Sketcher.Constraint("Coincident", 3, 3, -1, 1),
    Sketcher.Constraint("Equal", 1, 3),
    Sketcher.Constraint("Vertical", 1, 1, 2, 1),
    Sketcher.Constraint("Radius", 1, Q("2.5 mm")),
    Sketcher.Constraint("DistanceX", 0, 1, 0, 2, Q("4 mm")),
])
pocket4 = body4.newObject("PartDesign::Pocket", "Pocket003")
pocket4.Profile = sketch11
pocket4.Length = 6
doc.recompute()

chamfer = body4.newObject("PartDesign::Chamfer", "Chamfer")
chamfer.Base = (pocket4, edges_at(pocket4, [(-2.5, 0, 10.5), (2.372, -0.791, 10.5), (2.372, 0.791, 10.5)]))
chamfer.Size = 0.5
body5 = doc.addObject("PartDesign::Body", "Body004")

sketch12 = body5.newObject("Sketcher::SketchObject", "Sketch011")
sketch12.AttachmentSupport = (doc.getObject("XY_Plane004"), [""])
sketch12.MapMode = "FlatFace"
sketch12.addGeometry([
    Part.LineSegment(V(-13.04, -4.5, 0), V(-17.5, -4.5, 0)),
    Part.ArcOfCircle(Part.Circle(V(-17.5, -8, 0), V(0, 0, 1), 3.5), math.radians(90), math.radians(270)),
    Part.LineSegment(V(-17.5, -11.5, 0), V(-13.04, -11.5, 0)),
    Part.ArcOfCircle(Part.Circle(V(0, -8, 0), V(0, 0, 1), 13.5), math.radians(-165), math.radians(-144)),
    Part.LineSegment(V(-10.87, -16, 0), V(-10.47, -15.7, 0)),
    Part.ArcOfCircle(Part.Circle(V(0, -8, 0), V(0, 0, 1), 13), math.radians(-143.66), math.radians(-134.84)),
    Part.LineSegment(V(-9.17, -17.22, 0), V(-9.52, -17.57, 0)),
    Part.ArcOfCircle(Part.Circle(V(0, -8, 0), V(0, 0, 1), 13.5), math.radians(-134.84), math.radians(-132.76)),
    Part.LineSegment(V(-9.17, -17.91, 0), V(-9.17, -18.58, 0)),
    Part.ArcOfCircle(Part.Circle(V(0, -8, 0), V(0, 0, 1), 14), math.radians(-130.9), math.radians(-114.47)),
    Part.LineSegment(V(-5.8, -20.74, 0), V(-5.8, -23.5, 0)),
    Part.LineSegment(V(-5.8, -23.5, 0), V(5.8, -23.5, 0)),
    Part.LineSegment(V(5.8, -23.5, 0), V(5.8, -20.74, 0)),
    Part.ArcOfCircle(Part.Circle(V(0, -8, 0), V(0, 0, 1), 14), math.radians(-65.53), math.radians(-49.1)),
    Part.LineSegment(V(9.17, -18.58, 0), V(9.17, -17.91, 0)),
    Part.ArcOfCircle(Part.Circle(V(0, -8, 0), V(0, 0, 1), 13.5), math.radians(-47.24), math.radians(-45.16)),
    Part.LineSegment(V(9.52, -17.57, 0), V(9.17, -17.22, 0)),
    Part.ArcOfCircle(Part.Circle(V(0, -8, 0), V(0, 0, 1), 13), math.radians(-45.16), math.radians(-36.34)),
    Part.LineSegment(V(10.47, -15.7, 0), V(10.87, -16, 0)),
    Part.ArcOfCircle(Part.Circle(V(0, -8, 0), V(0, 0, 1), 13.5), math.radians(-36), math.radians(-15)),
    Part.LineSegment(V(13.04, -11.5, 0), V(17.5, -11.5, 0)),
    Part.ArcOfCircle(Part.Circle(V(17.5, -8, 0), V(0, 0, 1), 3.5), math.radians(-90), math.radians(90)),
    Part.LineSegment(V(17.5, -4.5, 0), V(13.04, -4.5, 0)),
    Part.ArcOfCircle(Part.Circle(V(0, -8, 0), V(0, 0, 1), 13.5), math.radians(15), math.radians(36)),
    Part.LineSegment(V(10.87, 0, 0), V(10.47, -0.3, 0)),
    Part.ArcOfCircle(Part.Circle(V(0, -8, 0), V(0, 0, 1), 13), math.radians(36.34), math.radians(45.16)),
    Part.LineSegment(V(9.17, 1.22, 0), V(9.52, 1.57, 0)),
    Part.ArcOfCircle(Part.Circle(V(0, -8, 0), V(0, 0, 1), 13.5), math.radians(45), math.radians(79)),
    Part.LineSegment(V(2.5, 5.27, 0), V(2.5, 5.77, 0)),
    Part.ArcOfCircle(Part.Circle(V(0, -8, 0), V(0, 0, 1), 14), math.radians(80), math.radians(100)),
    Part.LineSegment(V(-2.5, 5.77, 0), V(-2.5, 5.27, 0)),
    Part.ArcOfCircle(Part.Circle(V(0, -8, 0), V(0, 0, 1), 13.5), math.radians(101), math.radians(135)),
    Part.LineSegment(V(-9.52, 1.57, 0), V(-9.17, 1.22, 0)),
    Part.ArcOfCircle(Part.Circle(V(0, -8, 0), V(0, 0, 1), 13), math.radians(134.84), math.radians(143.66)),
    Part.LineSegment(V(-10.47, -0.3, 0), V(-10.87, 0, 0)),
    Part.ArcOfCircle(Part.Circle(V(0, -8, 0), V(0, 0, 1), 13.5), math.radians(144), math.radians(165)),
    Part.Circle(V(17.5, -8, 0), V(0, 0, 1), 2.1),
    Part.LineSegment(V(13.46, -7, 0), V(13.96, -7, 0)),
    Part.ArcOfCircle(Part.Circle(V(0, -8, 0), V(0, 0, 1), 14), math.radians(-4.1), math.radians(4.1)),
    Part.LineSegment(V(13.96, -9, 0), V(13.46, -9, 0)),
    Part.ArcOfCircle(Part.Circle(V(0, -8, 0), V(0, 0, 1), 13.5), math.radians(-4.25), math.radians(4.25)),
    Part.Circle(V(7, -8, 0), V(0, 0, 1), 0.5),
    Part.Circle(V(0, -12, 0), V(0, 0, 1), 0.5),
    Part.LineSegment(V(-13.96, -7, 0), V(-13.46, -7, 0)),
    Part.ArcOfCircle(Part.Circle(V(0, -8, 0), V(0, 0, 1), 13.5), math.radians(175.75), math.radians(184.25)),
    Part.LineSegment(V(-13.46, -9, 0), V(-13.96, -9, 0)),
    Part.ArcOfCircle(Part.Circle(V(0, -8, 0), V(0, 0, 1), 14), math.radians(175.9), math.radians(184.1)),
    Part.Circle(V(-17.5, -8, 0), V(0, 0, 1), 2.1),
    Part.Circle(V(6, -4, 0), V(0, 0, 1), 0.5),
    Part.Circle(V(0, 0, 0), V(0, 0, 1), 4.5),
], False)
sketch12.addConstraint([
    Sketcher.Constraint("Tangent", 0, 2, 1, 1),
    Sketcher.Constraint("Tangent", 1, 2, 2, 1),
    Sketcher.Constraint("Coincident", 2, 2, 3, 1),
    Sketcher.Constraint("Coincident", 3, 2, 4, 1),
    Sketcher.Constraint("Coincident", 4, 2, 5, 1),
    Sketcher.Constraint("Coincident", 5, 2, 6, 1),
    Sketcher.Constraint("Coincident", 6, 2, 7, 1),
    Sketcher.Constraint("Coincident", 7, 2, 8, 1),
    Sketcher.Constraint("Coincident", 8, 2, 9, 1),
    Sketcher.Constraint("Coincident", 9, 2, 10, 1),
    Sketcher.Constraint("Coincident", 10, 2, 11, 1),
    Sketcher.Constraint("Coincident", 11, 2, 12, 1),
    Sketcher.Constraint("Coincident", 12, 2, 13, 1),
    Sketcher.Constraint("Coincident", 13, 2, 14, 1),
    Sketcher.Constraint("Coincident", 14, 2, 15, 1),
    Sketcher.Constraint("Coincident", 15, 2, 16, 1),
    Sketcher.Constraint("Coincident", 16, 2, 17, 1),
    Sketcher.Constraint("Coincident", 17, 2, 18, 1),
    Sketcher.Constraint("Coincident", 18, 2, 19, 1),
    Sketcher.Constraint("Coincident", 19, 2, 20, 1),
    Sketcher.Constraint("Tangent", 20, 2, 21, 1),
    Sketcher.Constraint("Tangent", 21, 2, 22, 1),
    Sketcher.Constraint("Coincident", 22, 2, 23, 1),
    Sketcher.Constraint("Coincident", 23, 2, 24, 1),
    Sketcher.Constraint("Coincident", 24, 2, 25, 1),
    Sketcher.Constraint("Coincident", 25, 2, 26, 1),
    Sketcher.Constraint("Coincident", 26, 2, 27, 1),
    Sketcher.Constraint("Coincident", 27, 2, 28, 1),
    Sketcher.Constraint("Coincident", 28, 2, 29, 1),
    Sketcher.Constraint("Coincident", 29, 2, 30, 1),
    Sketcher.Constraint("Coincident", 30, 2, 31, 1),
    Sketcher.Constraint("Coincident", 31, 2, 32, 1),
    Sketcher.Constraint("Coincident", 32, 2, 33, 1),
    Sketcher.Constraint("Coincident", 33, 2, 34, 1),
    Sketcher.Constraint("Coincident", 34, 2, 35, 1),
    Sketcher.Constraint("Coincident", 35, 2, 0, 1),
    Sketcher.Constraint("Coincident", 37, 2, 38, 2),
    Sketcher.Constraint("Coincident", 38, 1, 39, 1),
    Sketcher.Constraint("Coincident", 39, 2, 40, 1),
    Sketcher.Constraint("Coincident", 40, 2, 37, 1),
    Sketcher.Constraint("Coincident", 43, 2, 44, 1),
    Sketcher.Constraint("Coincident", 44, 2, 45, 1),
    Sketcher.Constraint("Coincident", 45, 2, 46, 2),
    Sketcher.Constraint("Coincident", 46, 1, 43, 1),
    Sketcher.Constraint("Horizontal", 0),
    Sketcher.Constraint("Horizontal", 2),
    Sketcher.Constraint("Vertical", 8),
    Sketcher.Constraint("Vertical", 10),
    Sketcher.Constraint("Horizontal", 11),
    Sketcher.Constraint("Vertical", 12),
    Sketcher.Constraint("Vertical", 14),
    Sketcher.Constraint("Horizontal", 20),
    Sketcher.Constraint("Horizontal", 22),
    Sketcher.Constraint("Vertical", 28),
    Sketcher.Constraint("Vertical", 30),
    Sketcher.Constraint("Horizontal", 37),
    Sketcher.Constraint("Horizontal", 39),
    Sketcher.Constraint("Horizontal", 43),
    Sketcher.Constraint("Horizontal", 45),
    Sketcher.Constraint("Coincident", 49, 3, -1, 1),
    Sketcher.Constraint("Coincident", 5, 3, 3, 3),
    Sketcher.Constraint("Coincident", 7, 3, 3, 3),
    Sketcher.Constraint("Coincident", 9, 3, 3, 3),
    Sketcher.Constraint("Coincident", 13, 3, 3, 3),
    Sketcher.Constraint("Coincident", 15, 3, 3, 3),
    Sketcher.Constraint("Coincident", 17, 3, 3, 3),
    Sketcher.Constraint("Coincident", 19, 3, 3, 3),
    Sketcher.Constraint("Coincident", 23, 3, 3, 3),
    Sketcher.Constraint("Coincident", 25, 3, 3, 3),
    Sketcher.Constraint("Coincident", 27, 3, 3, 3),
    Sketcher.Constraint("Coincident", 29, 3, 3, 3),
    Sketcher.Constraint("Coincident", 31, 3, 3, 3),
    Sketcher.Constraint("Coincident", 33, 3, 3, 3),
    Sketcher.Constraint("Coincident", 35, 3, 3, 3),
    Sketcher.Constraint("Coincident", 36, 3, 21, 3),
    Sketcher.Constraint("Coincident", 38, 3, 3, 3),
    Sketcher.Constraint("Coincident", 40, 3, 3, 3),
    Sketcher.Constraint("Coincident", 44, 3, 3, 3),
    Sketcher.Constraint("Coincident", 46, 3, 3, 3),
    Sketcher.Constraint("Coincident", 47, 3, 1, 3),
    Sketcher.Constraint("Equal", 3, 7),
    Sketcher.Constraint("Equal", 9, 13),
    Sketcher.Constraint("Equal", 7, 15),
    Sketcher.Constraint("Equal", 5, 17),
    Sketcher.Constraint("Equal", 15, 19),
    Sketcher.Constraint("Equal", 1, 21),
    Sketcher.Constraint("Equal", 19, 23),
    Sketcher.Constraint("Equal", 17, 25),
    Sketcher.Constraint("Equal", 23, 27),
    Sketcher.Constraint("Equal", 13, 29),
    Sketcher.Constraint("Equal", 27, 31),
    Sketcher.Constraint("Equal", 25, 33),
    Sketcher.Constraint("Equal", 31, 35),
    Sketcher.Constraint("Equal", 29, 38),
    Sketcher.Constraint("Equal", 35, 40),
    Sketcher.Constraint("Equal", 41, 42),
    Sketcher.Constraint("Equal", 40, 44),
    Sketcher.Constraint("Equal", 38, 46),
    Sketcher.Constraint("Equal", 36, 47),
    Sketcher.Constraint("Equal", 42, 48),
    Sketcher.Constraint("Symmetric", 23, 2, 34, 2, -1, 1),
    Sketcher.Constraint("Symmetric", 1, 3, 21, 3, -2),
    Sketcher.Constraint("Symmetric", 9, 2, 12, 2, -2),
    Sketcher.Constraint("PointOnObject", 42, 3, -2),
    Sketcher.Constraint("Parallel", 4, 24),
    Sketcher.Constraint("Parallel", 6, 26),
    Sketcher.Constraint("Parallel", 16, 32),
    Sketcher.Constraint("Parallel", 18, 34),
    Sketcher.Constraint("Horizontal", 1, 3, 3, 3),
    Sketcher.Constraint("Horizontal", 40, 3, 41, 3),
    Sketcher.Constraint("Horizontal", 8, 2, 13, 2),
    Sketcher.Constraint("Horizontal", 6, 2, 15, 2),
    Sketcher.Constraint("Horizontal", 5, 2, 16, 2),
    Sketcher.Constraint("Horizontal", 4, 2, 17, 2),
    Sketcher.Constraint("Horizontal", 3, 2, 18, 2),
    Sketcher.Constraint("Horizontal", 28, 2, 29, 2),
    Sketcher.Constraint("Horizontal", 26, 2, 31, 2),
    Sketcher.Constraint("Horizontal", 40, 2, 43, 2),
    Sketcher.Constraint("Horizontal", 39, 2, 44, 2),
    Sketcher.Constraint("Vertical", 5, 2, 7, 2),
    Sketcher.Constraint("Vertical", 18, 2, 23, 2),
    Sketcher.Constraint("Vertical", 16, 2, 25, 2),
    Sketcher.Constraint("Vertical", 37, 2, 38, 1),
    Sketcher.Constraint("Diameter", 41, Q("1 mm")),
    Sketcher.Constraint("Diameter", 49, Q("9 mm")),
    Sketcher.Constraint("Radius", 5, Q("13 mm")),
    Sketcher.Constraint("Radius", 9, Q("14 mm")),
    Sketcher.Constraint("Diameter", 36, Q("4.2 mm")),
    Sketcher.Constraint("Radius", 1, Q("3.5 mm")),
    Sketcher.Constraint("Radius", 3, Q("13.5 mm")),
    Sketcher.Constraint("DistanceX", 11, 1, 11, 2, Q("11.6 mm")),
    Sketcher.Constraint("DistanceY", 1, 3, -1, 1, Q("8 mm")),
    Sketcher.Constraint("DistanceX", -1, 1, 41, 3, Q("7 mm")),
    Sketcher.Constraint("DistanceY", 42, 3, -1, 1, Q("12 mm")),
    Sketcher.Constraint("DistanceX", -1, 1, 48, 3, Q("6 mm")),
    Sketcher.Constraint("DistanceY", 48, 3, -1, 1, Q("4 mm")),
    Sketcher.Constraint("DistanceY", 37, 2, -1, 1, Q("7 mm")),
    Sketcher.Constraint("DistanceX", 1, 3, -1, 1, Q("17.5 mm")),
    Sketcher.Constraint("DistanceY", 10, 2, -1, 1, Q("23.5 mm")),
    Sketcher.Constraint("DistanceX", -1, 1, 27, 2, Q("2.5 mm")),
    Sketcher.Constraint("DistanceY", 8, 2, 8, 1, Q("0.670937 mm")),
    Sketcher.Constraint("DistanceX", 4, 2, -1, 1, Q("10.47153 mm")),
    Sketcher.Constraint("DistanceX", 6, 2, -1, 1, Q("9.518469 mm")),
])
pad8 = body5.newObject("PartDesign::Pad", "Pad007")
pad8.Profile = sketch12
pad8.Length = 0.5
doc.recompute()

boolean = body5.newObject("PartDesign::Boolean", "Boolean")
boolean.Type = "Fuse"
boolean.addObjects([body])
doc.recompute()

boolean2 = body5.newObject("PartDesign::Boolean", "Boolean001")
boolean2.Type = "Fuse"
boolean2.addObjects([body2])
doc.recompute()

boolean3 = body5.newObject("PartDesign::Boolean", "Boolean002")
boolean3.Type = "Fuse"
boolean3.addObjects([body3])
doc.recompute()

boolean4 = body5.newObject("PartDesign::Boolean", "Boolean003")
boolean4.Type = "Fuse"
boolean4.addObjects([body4])

doc.recompute()
